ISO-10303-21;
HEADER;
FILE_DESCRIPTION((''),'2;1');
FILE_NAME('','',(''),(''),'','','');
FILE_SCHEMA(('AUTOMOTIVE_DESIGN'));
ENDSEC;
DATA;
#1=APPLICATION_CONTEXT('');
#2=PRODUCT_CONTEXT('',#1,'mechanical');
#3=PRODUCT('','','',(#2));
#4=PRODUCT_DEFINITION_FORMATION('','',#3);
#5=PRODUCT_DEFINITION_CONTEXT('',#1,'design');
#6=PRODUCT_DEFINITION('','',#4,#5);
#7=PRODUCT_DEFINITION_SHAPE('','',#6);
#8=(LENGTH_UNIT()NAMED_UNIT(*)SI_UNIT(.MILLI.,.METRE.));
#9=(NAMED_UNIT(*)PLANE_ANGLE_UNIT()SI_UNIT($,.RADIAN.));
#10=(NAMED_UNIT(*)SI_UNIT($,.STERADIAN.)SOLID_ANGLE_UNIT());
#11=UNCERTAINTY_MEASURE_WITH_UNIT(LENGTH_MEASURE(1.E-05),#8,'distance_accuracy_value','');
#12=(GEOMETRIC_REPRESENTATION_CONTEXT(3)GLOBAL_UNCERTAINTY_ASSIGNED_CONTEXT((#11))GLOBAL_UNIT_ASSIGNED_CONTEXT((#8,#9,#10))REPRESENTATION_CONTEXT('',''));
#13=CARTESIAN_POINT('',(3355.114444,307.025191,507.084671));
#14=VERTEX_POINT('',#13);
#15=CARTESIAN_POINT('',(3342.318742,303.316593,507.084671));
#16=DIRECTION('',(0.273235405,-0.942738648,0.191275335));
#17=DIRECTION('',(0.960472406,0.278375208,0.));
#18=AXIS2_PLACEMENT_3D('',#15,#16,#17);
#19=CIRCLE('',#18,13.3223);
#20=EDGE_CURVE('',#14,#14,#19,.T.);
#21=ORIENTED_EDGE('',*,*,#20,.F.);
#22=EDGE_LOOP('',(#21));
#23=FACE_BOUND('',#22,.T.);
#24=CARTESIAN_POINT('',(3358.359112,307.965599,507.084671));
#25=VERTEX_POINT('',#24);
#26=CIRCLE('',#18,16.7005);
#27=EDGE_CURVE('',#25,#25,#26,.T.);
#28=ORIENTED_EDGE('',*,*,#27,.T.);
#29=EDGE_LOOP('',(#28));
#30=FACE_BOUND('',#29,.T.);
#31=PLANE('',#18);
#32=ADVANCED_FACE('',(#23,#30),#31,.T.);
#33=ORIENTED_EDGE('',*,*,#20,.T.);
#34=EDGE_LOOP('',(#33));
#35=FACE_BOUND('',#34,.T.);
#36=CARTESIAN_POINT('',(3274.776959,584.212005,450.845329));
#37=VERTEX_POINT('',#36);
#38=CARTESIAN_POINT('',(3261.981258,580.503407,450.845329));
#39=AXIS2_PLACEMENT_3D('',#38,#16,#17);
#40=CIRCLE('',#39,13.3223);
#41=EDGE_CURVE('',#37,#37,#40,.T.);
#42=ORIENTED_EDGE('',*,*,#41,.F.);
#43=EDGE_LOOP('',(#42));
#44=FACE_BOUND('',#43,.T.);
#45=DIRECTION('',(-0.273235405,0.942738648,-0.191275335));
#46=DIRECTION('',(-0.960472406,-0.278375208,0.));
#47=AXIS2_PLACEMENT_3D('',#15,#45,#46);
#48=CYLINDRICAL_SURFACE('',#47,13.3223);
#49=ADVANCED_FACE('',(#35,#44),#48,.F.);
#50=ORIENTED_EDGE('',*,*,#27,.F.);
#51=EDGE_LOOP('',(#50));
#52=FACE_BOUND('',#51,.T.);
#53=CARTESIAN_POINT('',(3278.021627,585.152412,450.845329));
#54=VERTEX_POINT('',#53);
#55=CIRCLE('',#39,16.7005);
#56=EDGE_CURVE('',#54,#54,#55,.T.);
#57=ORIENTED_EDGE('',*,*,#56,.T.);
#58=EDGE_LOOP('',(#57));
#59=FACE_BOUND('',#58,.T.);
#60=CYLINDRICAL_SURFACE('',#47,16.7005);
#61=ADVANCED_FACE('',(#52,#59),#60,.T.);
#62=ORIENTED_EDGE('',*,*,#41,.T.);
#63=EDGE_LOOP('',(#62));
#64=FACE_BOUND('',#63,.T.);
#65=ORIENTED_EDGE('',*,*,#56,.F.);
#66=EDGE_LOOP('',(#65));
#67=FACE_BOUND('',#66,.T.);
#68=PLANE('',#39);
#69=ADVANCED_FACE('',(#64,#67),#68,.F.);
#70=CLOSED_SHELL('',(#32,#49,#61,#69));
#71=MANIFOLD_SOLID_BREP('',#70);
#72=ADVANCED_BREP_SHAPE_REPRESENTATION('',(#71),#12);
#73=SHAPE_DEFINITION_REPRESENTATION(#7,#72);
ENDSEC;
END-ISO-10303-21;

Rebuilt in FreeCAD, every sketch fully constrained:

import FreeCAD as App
import Part
import Sketcher
Q = App.Units.Quantity

doc = App.newDocument("Part")
params = doc.addObject("Spreadsheet::Sheet", "Params")
for row, (alias, value) in enumerate([
    ("sketch1_diameter", "1.315 in"),
    ("sketch1_diameter2", "1.049 in"),
    ("pad1_length", "294.022966 mm"),
], start=1):
    params.set(f"A{row}", alias)
    params.set(f"B{row}", "=" + value)
    params.setAlias(f"B{row}", alias)

body = doc.addObject("PartDesign::Body", "Body")

# Sketch on an angled plane
sketch1 = body.newObject("Sketcher::SketchObject", "Sketch")
sketch1.Placement = App.Placement(App.Vector(3261.981258, 580.503407, 450.845329), App.Rotation(App.Vector(0.937329697, 0.216230093, -0.273235405), App.Vector(0.216230093, 0.253945638, 0.942738648), App.Vector(0.273235405, -0.942738648, 0.191275335), "ZXY"))
sketch1.addGeometry([
    Part.Circle(App.Vector(0, 0, 0), App.Vector(0, 0, 1), 17),
    Part.Circle(App.Vector(0, 0, 0), App.Vector(0, 0, 1), 13),
], False)
sketch1.addConstraint([
    Sketcher.Constraint("Coincident", 0, 3, -1, 1),
    Sketcher.Constraint("Coincident", 1, 3, -1, 1),
    Sketcher.Constraint("Diameter", 0, Q("1.315 in")),
    Sketcher.Constraint("Diameter", 1, Q("1.049 in")),
])
sketch1.setExpression("Constraints[2]", "Params.sketch1_diameter")
sketch1.setExpression("Constraints[3]", "Params.sketch1_diameter2")
pad1 = body.newObject("PartDesign::Pad", "Pad")
pad1.Profile = sketch1
pad1.setExpression("Length", "Params.pad1_length")

doc.recompute()
